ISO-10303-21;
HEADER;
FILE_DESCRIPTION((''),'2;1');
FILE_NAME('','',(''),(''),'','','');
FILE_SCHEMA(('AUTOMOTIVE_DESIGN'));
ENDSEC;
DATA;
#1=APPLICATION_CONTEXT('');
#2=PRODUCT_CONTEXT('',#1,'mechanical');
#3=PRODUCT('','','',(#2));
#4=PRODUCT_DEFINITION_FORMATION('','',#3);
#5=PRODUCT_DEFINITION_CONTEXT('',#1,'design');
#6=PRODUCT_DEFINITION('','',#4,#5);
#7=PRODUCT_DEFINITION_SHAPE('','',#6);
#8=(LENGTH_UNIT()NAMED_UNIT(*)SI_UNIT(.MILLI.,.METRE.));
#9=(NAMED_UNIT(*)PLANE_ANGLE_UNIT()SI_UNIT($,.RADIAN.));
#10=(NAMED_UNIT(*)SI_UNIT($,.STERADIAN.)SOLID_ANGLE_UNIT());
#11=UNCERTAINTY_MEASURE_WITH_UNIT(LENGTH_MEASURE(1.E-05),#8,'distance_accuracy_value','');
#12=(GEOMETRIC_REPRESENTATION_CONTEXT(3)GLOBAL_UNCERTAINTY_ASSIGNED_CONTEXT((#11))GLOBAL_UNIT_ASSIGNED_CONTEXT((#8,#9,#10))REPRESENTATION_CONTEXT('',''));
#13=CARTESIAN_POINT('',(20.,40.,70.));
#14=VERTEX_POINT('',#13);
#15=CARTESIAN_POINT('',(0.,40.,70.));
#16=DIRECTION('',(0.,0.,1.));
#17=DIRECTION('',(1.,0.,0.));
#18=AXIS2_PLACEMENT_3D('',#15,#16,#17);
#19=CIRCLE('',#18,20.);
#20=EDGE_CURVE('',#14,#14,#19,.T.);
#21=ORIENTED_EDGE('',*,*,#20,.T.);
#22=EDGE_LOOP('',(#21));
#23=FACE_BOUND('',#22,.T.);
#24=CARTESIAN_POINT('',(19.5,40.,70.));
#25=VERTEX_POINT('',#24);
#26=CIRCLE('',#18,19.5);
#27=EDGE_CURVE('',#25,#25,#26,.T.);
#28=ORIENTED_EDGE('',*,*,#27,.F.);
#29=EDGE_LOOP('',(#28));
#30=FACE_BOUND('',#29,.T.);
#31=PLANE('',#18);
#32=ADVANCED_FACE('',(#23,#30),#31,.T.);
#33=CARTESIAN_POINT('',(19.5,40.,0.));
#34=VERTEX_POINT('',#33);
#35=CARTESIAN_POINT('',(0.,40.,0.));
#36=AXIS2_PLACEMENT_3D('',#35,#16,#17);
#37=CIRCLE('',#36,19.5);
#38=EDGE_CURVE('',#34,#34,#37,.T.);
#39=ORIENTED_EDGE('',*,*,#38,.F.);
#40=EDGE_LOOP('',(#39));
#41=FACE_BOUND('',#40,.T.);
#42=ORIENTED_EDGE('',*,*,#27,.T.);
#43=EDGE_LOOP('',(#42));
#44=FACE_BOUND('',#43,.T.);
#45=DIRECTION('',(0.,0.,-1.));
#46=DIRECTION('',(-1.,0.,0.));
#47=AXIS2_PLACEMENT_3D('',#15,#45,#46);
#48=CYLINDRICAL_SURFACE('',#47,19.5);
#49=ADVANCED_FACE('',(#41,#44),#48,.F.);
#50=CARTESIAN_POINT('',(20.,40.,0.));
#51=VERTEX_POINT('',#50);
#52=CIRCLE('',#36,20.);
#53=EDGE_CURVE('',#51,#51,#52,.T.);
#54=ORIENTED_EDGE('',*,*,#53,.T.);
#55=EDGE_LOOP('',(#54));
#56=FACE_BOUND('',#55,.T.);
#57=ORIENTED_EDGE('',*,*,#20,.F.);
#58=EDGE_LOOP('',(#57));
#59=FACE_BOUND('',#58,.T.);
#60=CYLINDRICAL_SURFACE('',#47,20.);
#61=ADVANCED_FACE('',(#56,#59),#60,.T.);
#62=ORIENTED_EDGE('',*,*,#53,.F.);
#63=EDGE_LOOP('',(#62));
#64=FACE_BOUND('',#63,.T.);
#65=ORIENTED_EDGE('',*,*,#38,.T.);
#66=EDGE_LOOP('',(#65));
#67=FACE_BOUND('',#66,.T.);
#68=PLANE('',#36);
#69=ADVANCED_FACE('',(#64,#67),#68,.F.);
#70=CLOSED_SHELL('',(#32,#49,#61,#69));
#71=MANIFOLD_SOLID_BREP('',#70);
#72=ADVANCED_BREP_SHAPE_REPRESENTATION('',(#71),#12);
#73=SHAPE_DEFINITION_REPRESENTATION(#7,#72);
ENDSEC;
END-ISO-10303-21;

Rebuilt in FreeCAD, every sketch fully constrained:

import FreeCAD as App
import Part
import Sketcher
from FreeCAD import Vector
Q = App.Units.Quantity

doc = App.newDocument("Part")
body = doc.addObject("PartDesign::Body", "Body")

sketch1 = body.newObject("Sketcher::SketchObject", "Sketch")
sketch1.AttachmentSupport = (doc.getObject("XY_Plane"), [""])
sketch1.MapMode = "FlatFace"
sketch1.addGeometry([
    Part.Circle(Vector(0, 40, 0), Vector(0, 0, 1), 20),
    Part.Circle(Vector(0, 40, 0), Vector(0, 0, 1), 19.5),
], False)
sketch1.addConstraint([
    Sketcher.Constraint("Coincident", 1, 3, 0, 3),
    Sketcher.Constraint("PointOnObject", 0, 3, -2),
    Sketcher.Constraint("Diameter", 0, Q("40 mm")),
    Sketcher.Constraint("Diameter", 1, Q("39 mm")),
    Sketcher.Constraint("DistanceY", -1, 1, 0, 3, Q("40 mm")),
])
pad1 = body.newObject("PartDesign::Pad", "Pad")
pad1.Profile = sketch1
pad1.Length = 70

doc.recompute()
